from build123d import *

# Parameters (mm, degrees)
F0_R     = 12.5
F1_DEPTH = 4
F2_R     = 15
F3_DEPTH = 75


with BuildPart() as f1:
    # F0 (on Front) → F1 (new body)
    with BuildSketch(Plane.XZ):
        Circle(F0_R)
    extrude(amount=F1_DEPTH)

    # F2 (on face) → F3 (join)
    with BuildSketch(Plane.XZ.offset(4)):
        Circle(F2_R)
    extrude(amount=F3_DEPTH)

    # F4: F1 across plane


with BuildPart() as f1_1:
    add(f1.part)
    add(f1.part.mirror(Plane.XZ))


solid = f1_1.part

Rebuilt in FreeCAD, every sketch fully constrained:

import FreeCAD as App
import Part
import Sketcher

doc = App.newDocument("Part")
body = doc.addObject("PartDesign::Body", "Body")

# Sketch on XZ plane
sketch1 = doc.addObject("Sketcher::SketchObject", "Sketch")
body.addObject(sketch1)
sketch1.AttachmentSupport = (doc.XZ_Plane, [""])
sketch1.MapMode = "FlatFace"
sketch1.addGeometry(Part.Circle(App.Vector(0, 0, 0), App.Vector(0, 0, 1), 12.5), False)
sketch1.addConstraint([
    Sketcher.Constraint("Coincident", 0, 3, -1, 1),
    Sketcher.Constraint("Diameter", 0, 25.0),
])
pad1 = doc.addObject("PartDesign::Pad", "Pad")
body.addObject(pad1)
pad1.Profile = sketch1
pad1.Length = 4

# Sketch on XZ plane
sketch2 = doc.addObject("Sketcher::SketchObject", "Sketch001")
body.addObject(sketch2)
sketch2.AttachmentSupport = (doc.XZ_Plane, [""])
sketch2.MapMode = "FlatFace"
sketch2.AttachmentOffset = App.Placement(App.Vector(0, 0, 4), App.Rotation())
sketch2.addGeometry(Part.Circle(App.Vector(0, 0, 0), App.Vector(0, 0, 1), 15), False)
sketch2.addConstraint([
    Sketcher.Constraint("Coincident", 0, 3, -1, 1),
    Sketcher.Constraint("Diameter", 0, 30.0),
])
pad2 = doc.addObject("PartDesign::Pad", "Pad001")
body.addObject(pad2)
pad2.Profile = sketch2
pad2.Length = 75
body2 = doc.addObject("PartDesign::Body", "Body001")
doc.recompute()

body2.BaseFeature = body
doc.recompute()

mirroring = doc.addObject("Part::Mirroring", "Mirroring")
mirroring.Source = body
mirroring.Base = App.Vector(0, 0, 0)
mirroring.Normal = App.Vector(0, -1, 0)
body3 = doc.addObject("PartDesign::Body", "Body002")
body3.BaseFeature = mirroring
boolean = doc.addObject("PartDesign::Boolean", "Boolean")
body2.addObject(boolean)
boolean.Type = "Fuse"
boolean.addObjects([body3])
doc.recompute()
mirroring.Visibility = False

doc.recompute()
